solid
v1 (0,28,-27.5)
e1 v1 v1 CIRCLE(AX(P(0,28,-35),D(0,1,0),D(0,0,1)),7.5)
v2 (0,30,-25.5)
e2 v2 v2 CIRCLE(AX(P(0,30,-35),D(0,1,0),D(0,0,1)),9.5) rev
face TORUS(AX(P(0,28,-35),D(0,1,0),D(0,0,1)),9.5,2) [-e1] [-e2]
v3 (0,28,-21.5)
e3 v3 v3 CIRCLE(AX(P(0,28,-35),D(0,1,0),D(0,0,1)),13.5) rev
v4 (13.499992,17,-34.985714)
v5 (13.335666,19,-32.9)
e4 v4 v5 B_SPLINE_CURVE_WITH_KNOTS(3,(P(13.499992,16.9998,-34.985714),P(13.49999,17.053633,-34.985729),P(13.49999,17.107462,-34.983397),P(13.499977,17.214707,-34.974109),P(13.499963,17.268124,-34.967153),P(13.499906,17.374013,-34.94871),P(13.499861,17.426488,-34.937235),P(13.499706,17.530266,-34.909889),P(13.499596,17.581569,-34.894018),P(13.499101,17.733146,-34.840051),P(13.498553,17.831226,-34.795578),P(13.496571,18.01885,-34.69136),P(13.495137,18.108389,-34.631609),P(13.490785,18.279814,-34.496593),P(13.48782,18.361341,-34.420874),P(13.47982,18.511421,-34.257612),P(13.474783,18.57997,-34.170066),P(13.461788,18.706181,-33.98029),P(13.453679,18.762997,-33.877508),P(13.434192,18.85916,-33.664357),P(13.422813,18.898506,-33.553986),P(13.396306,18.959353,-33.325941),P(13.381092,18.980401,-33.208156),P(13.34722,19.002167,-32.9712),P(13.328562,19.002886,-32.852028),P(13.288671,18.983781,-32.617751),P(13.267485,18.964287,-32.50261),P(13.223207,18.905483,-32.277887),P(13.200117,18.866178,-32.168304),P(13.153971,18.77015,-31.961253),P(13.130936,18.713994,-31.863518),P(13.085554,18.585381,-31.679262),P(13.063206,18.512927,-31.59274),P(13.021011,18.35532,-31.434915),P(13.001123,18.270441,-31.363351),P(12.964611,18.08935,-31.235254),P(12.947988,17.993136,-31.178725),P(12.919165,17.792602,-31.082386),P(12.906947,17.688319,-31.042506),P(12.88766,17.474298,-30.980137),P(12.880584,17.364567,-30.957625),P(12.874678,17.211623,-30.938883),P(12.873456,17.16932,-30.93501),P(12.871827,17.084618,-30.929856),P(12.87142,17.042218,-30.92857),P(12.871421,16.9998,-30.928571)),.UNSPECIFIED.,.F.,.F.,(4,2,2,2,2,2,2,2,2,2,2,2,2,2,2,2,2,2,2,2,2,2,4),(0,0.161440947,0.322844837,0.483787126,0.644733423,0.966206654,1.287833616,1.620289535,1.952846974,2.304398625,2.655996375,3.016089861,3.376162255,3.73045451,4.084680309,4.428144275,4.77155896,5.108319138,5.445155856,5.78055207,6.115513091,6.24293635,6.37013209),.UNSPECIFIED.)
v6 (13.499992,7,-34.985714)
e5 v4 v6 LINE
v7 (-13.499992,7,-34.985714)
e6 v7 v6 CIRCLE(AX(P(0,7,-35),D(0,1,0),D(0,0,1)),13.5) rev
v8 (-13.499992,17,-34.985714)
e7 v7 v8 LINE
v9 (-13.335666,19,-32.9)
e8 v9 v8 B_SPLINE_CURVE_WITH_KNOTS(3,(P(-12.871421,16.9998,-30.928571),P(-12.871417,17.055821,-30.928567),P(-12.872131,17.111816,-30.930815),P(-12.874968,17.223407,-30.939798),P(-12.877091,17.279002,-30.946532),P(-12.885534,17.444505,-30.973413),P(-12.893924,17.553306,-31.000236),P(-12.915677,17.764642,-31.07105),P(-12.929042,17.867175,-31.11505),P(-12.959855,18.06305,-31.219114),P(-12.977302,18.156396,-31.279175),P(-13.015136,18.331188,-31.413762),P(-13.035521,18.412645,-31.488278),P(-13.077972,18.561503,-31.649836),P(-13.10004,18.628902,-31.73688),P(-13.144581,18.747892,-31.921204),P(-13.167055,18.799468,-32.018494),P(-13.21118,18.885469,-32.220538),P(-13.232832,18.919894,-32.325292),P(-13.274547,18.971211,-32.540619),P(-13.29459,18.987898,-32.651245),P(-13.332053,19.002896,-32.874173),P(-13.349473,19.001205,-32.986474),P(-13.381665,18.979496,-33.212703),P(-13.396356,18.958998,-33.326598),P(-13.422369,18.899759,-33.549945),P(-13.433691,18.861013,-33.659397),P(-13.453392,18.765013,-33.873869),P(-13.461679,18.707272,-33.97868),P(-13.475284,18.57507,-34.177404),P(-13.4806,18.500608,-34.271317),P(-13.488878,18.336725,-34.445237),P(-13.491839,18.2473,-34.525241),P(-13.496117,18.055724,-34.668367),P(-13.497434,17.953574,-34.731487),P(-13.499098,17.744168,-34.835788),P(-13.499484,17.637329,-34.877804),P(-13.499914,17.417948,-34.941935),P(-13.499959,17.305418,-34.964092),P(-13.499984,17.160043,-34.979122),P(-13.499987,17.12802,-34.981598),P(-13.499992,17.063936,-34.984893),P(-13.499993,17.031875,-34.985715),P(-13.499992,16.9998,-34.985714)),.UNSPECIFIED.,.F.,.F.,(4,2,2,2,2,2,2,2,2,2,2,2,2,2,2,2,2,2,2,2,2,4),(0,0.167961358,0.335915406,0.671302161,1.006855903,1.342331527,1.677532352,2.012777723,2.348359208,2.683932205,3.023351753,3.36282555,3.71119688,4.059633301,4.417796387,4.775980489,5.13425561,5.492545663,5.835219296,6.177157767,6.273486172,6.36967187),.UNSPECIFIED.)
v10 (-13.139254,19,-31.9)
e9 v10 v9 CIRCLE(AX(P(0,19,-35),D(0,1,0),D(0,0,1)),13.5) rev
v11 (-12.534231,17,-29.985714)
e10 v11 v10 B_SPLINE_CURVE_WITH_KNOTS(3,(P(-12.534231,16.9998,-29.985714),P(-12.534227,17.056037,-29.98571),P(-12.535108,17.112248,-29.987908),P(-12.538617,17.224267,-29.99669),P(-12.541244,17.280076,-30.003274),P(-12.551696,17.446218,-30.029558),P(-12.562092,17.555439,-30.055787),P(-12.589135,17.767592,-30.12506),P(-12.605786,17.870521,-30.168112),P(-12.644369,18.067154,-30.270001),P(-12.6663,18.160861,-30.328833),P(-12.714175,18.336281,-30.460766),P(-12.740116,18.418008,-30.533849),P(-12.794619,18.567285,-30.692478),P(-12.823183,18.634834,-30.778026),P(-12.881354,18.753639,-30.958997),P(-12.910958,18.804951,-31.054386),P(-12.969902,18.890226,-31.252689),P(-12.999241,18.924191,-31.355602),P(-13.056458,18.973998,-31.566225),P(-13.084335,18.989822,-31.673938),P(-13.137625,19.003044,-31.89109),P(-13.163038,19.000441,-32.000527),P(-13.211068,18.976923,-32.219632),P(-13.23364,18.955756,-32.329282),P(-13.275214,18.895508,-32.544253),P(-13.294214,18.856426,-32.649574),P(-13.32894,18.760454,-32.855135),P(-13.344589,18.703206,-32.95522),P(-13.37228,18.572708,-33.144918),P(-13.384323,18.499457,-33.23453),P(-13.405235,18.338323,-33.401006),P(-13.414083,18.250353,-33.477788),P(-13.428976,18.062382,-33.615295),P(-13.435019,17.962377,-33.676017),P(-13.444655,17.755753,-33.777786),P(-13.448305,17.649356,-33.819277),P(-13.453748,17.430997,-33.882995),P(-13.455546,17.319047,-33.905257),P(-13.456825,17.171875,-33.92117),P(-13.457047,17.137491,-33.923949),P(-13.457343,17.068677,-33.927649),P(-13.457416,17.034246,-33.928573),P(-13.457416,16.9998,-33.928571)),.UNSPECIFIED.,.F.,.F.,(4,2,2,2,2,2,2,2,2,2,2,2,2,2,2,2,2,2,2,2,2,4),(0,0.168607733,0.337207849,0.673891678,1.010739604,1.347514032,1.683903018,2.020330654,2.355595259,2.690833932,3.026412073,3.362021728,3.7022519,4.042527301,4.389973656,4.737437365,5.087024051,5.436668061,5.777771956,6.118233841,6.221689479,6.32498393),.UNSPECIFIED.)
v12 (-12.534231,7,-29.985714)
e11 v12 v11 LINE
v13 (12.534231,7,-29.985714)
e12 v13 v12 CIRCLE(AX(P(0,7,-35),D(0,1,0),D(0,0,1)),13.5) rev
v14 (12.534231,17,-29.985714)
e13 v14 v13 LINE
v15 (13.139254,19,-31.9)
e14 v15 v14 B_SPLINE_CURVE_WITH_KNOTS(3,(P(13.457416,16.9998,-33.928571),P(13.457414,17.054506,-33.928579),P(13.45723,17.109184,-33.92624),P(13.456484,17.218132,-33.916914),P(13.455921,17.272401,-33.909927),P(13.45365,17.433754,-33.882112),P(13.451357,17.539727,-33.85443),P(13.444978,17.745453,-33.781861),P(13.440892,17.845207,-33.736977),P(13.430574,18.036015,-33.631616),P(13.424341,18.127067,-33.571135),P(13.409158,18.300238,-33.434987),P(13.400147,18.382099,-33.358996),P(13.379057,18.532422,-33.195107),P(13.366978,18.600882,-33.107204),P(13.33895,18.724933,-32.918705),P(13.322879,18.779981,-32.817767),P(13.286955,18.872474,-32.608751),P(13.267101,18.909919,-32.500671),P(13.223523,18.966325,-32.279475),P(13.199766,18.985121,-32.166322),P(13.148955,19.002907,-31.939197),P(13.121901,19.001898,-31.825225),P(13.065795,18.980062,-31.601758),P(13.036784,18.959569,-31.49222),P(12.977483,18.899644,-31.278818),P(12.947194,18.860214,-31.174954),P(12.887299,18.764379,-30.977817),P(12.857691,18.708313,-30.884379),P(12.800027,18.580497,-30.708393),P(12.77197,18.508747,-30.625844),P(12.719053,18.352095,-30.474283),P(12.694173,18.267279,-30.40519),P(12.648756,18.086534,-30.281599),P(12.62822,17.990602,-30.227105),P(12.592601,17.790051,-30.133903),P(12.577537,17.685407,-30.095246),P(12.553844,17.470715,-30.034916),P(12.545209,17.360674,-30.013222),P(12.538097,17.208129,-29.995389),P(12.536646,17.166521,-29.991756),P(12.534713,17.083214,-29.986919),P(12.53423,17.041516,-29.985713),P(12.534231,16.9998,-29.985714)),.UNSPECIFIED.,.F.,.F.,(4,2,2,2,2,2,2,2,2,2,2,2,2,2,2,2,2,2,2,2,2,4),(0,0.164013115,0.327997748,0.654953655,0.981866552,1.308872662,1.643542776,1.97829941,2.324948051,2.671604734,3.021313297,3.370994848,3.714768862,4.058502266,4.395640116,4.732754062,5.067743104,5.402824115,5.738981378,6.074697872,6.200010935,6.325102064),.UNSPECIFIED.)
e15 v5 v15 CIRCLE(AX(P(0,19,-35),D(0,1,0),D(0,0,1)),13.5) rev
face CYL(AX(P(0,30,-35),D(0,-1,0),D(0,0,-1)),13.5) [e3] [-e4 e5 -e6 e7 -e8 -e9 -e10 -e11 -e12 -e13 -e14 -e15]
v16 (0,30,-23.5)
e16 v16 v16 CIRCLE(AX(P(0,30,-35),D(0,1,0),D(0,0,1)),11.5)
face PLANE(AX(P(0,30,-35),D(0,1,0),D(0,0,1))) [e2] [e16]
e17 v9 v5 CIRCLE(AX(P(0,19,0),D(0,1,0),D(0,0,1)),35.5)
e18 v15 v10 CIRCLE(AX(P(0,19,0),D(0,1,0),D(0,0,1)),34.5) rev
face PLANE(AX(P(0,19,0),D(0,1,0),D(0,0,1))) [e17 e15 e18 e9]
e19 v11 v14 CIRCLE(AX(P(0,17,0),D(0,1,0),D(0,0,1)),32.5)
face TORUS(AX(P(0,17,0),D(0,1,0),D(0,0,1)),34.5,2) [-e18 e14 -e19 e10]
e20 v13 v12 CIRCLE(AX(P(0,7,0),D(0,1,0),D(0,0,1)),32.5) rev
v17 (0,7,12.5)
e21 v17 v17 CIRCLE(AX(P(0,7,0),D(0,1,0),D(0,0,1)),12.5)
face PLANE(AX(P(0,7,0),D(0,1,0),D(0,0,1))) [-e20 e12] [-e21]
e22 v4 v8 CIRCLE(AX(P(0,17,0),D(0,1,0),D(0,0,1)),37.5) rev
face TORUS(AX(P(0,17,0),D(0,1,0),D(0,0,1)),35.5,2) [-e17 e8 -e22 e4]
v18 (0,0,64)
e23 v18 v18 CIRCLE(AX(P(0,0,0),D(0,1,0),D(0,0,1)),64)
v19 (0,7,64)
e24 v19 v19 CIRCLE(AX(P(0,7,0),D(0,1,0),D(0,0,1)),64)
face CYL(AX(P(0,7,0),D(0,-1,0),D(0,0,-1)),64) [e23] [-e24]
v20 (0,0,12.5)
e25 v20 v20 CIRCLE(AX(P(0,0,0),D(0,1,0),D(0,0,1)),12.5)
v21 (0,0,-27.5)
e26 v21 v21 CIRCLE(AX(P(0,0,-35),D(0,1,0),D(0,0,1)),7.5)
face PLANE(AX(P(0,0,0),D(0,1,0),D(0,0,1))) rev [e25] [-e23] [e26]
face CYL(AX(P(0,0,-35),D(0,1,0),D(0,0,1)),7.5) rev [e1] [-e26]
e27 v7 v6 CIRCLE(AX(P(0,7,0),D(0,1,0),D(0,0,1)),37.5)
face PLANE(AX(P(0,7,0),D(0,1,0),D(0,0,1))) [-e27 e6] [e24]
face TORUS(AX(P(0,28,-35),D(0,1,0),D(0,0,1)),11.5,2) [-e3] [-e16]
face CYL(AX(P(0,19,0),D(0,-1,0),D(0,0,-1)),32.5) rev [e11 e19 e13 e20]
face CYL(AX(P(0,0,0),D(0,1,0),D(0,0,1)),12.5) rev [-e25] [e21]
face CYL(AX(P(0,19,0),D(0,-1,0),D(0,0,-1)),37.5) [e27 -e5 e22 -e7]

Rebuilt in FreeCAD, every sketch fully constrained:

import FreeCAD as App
import Part
import Sketcher

V = App.Vector
Q = App.Units.Quantity


def edges_at(feature, points):
    """Names of the edges that pass closest to the given points."""
    edges = feature.Shape.Edges
    near = lambda p: min(range(len(edges)), key=lambda i: edges[i].distToShape(Part.Vertex(*p))[0])
    return sorted({f"Edge{near(p) + 1}" for p in points})

doc = App.newDocument("Part")
body = doc.addObject("PartDesign::Body", "Body")

# Sketch on XZ plane
sketch1 = body.newObject("Sketcher::SketchObject", "Sketch")
sketch1.AttachmentSupport = (doc.getObject("XZ_Plane"), [""])
sketch1.MapMode = "FlatFace"
sketch1.addGeometry(Part.Circle(V(0, 0, 0), V(0, 0, 1), 64), False)
sketch1.addConstraint(Sketcher.Constraint("Coincident", 0, 3, -1, 1))
sketch1.addConstraint(Sketcher.Constraint("Diameter", 0, Q("128 mm")))
pad1 = body.newObject("PartDesign::Pad", "Pad")
pad1.Profile = sketch1
pad1.Length = 7
pad1.Reversed = True

# Sketch on XZ plane
sketch2 = body.newObject("Sketcher::SketchObject", "Sketch001")
sketch2.AttachmentSupport = (doc.getObject("XZ_Plane"), [""])
sketch2.MapMode = "FlatFace"
sketch2.AttachmentOffset = App.Placement(V(0, 0, -7), App.Rotation())
sketch2.addGeometry(Part.Circle(V(0, 0, 0), V(0, 0, 1), 38), False)
sketch2.addGeometry(Part.Circle(V(0, 0, 0), V(0, 0, 1), 32), False)
sketch2.addConstraint(Sketcher.Constraint("Coincident", 0, 3, -1, 1))
sketch2.addConstraint(Sketcher.Constraint("Coincident", 1, 3, -1, 1))
sketch2.addConstraint(Sketcher.Constraint("Diameter", 0, Q("75 mm")))
sketch2.addConstraint(Sketcher.Constraint("Diameter", 1, Q("65 mm")))
pad2 = body.newObject("PartDesign::Pad", "Pad001")
pad2.Profile = sketch2
pad2.Length = 12
pad2.Reversed = True

# Sketch on XZ plane
sketch3 = body.newObject("Sketcher::SketchObject", "Sketch002")
sketch3.AttachmentSupport = (doc.getObject("XZ_Plane"), [""])
sketch3.MapMode = "FlatFace"
sketch3.AttachmentOffset = App.Placement(V(0, 0, -7), App.Rotation())
sketch3.addGeometry(Part.Circle(V(0, 0, 0), V(0, 0, 1), 12), False)
sketch3.addConstraint(Sketcher.Constraint("Coincident", 0, 3, -1, 1))
sketch3.addConstraint(Sketcher.Constraint("Diameter", 0, Q("25 mm")))
pocket1 = body.newObject("PartDesign::Pocket", "Pocket")
pocket1.Profile = sketch3
pocket1.Type = "ThroughAll"
pocket1.Reversed = True
doc.recompute()

fillet = body.newObject("PartDesign::Fillet", "Fillet")
fillet.Base = (pocket1, edges_at(pocket1, [(0, 19, -32.5), (0, 19, -37.5)]))
fillet.Radius = 2

# Sketch on XZ plane
sketch4 = body.newObject("Sketcher::SketchObject", "Sketch003")
sketch4.AttachmentSupport = (doc.getObject("XZ_Plane"), [""])
sketch4.MapMode = "FlatFace"
sketch4.addGeometry(Part.Circle(V(0, -35, 0), V(0, 0, 1), 14), False)
sketch4.addConstraint(Sketcher.Constraint("PointOnObject", 0, 3, -2))
sketch4.addConstraint(Sketcher.Constraint("Diameter", 0, Q("27 mm")))
sketch4.addConstraint(Sketcher.Constraint("DistanceY", 0, 3, -1, 1, Q("35 mm")))
pad3 = body.newObject("PartDesign::Pad", "Pad002")
pad3.Profile = sketch4
pad3.Length = 30
pad3.Reversed = True

# Sketch on XZ plane
sketch5 = body.newObject("Sketcher::SketchObject", "Sketch004")
sketch5.AttachmentSupport = (doc.getObject("XZ_Plane"), [""])
sketch5.MapMode = "FlatFace"
sketch5.AttachmentOffset = App.Placement(V(0, 0, -30), App.Rotation())
sketch5.addGeometry(Part.Circle(V(0, -35, 0), V(0, 0, 1), 8), False)
sketch5.addConstraint(Sketcher.Constraint("PointOnObject", 0, 3, -2))
sketch5.addConstraint(Sketcher.Constraint("Diameter", 0, Q("15 mm")))
sketch5.addConstraint(Sketcher.Constraint("DistanceY", 0, 3, -1, 1, Q("35 mm")))
pocket2 = body.newObject("PartDesign::Pocket", "Pocket001")
pocket2.Profile = sketch5
pocket2.Type = "ThroughAll"
pocket2.Reversed = True
doc.recompute()

fillet2 = body.newObject("PartDesign::Fillet", "Fillet001")
fillet2.Base = (pocket2, edges_at(pocket2, [(-13.5, 30, -35.014), (0, 30, -42.5)]))
fillet2.Radius = 2

doc.recompute()
